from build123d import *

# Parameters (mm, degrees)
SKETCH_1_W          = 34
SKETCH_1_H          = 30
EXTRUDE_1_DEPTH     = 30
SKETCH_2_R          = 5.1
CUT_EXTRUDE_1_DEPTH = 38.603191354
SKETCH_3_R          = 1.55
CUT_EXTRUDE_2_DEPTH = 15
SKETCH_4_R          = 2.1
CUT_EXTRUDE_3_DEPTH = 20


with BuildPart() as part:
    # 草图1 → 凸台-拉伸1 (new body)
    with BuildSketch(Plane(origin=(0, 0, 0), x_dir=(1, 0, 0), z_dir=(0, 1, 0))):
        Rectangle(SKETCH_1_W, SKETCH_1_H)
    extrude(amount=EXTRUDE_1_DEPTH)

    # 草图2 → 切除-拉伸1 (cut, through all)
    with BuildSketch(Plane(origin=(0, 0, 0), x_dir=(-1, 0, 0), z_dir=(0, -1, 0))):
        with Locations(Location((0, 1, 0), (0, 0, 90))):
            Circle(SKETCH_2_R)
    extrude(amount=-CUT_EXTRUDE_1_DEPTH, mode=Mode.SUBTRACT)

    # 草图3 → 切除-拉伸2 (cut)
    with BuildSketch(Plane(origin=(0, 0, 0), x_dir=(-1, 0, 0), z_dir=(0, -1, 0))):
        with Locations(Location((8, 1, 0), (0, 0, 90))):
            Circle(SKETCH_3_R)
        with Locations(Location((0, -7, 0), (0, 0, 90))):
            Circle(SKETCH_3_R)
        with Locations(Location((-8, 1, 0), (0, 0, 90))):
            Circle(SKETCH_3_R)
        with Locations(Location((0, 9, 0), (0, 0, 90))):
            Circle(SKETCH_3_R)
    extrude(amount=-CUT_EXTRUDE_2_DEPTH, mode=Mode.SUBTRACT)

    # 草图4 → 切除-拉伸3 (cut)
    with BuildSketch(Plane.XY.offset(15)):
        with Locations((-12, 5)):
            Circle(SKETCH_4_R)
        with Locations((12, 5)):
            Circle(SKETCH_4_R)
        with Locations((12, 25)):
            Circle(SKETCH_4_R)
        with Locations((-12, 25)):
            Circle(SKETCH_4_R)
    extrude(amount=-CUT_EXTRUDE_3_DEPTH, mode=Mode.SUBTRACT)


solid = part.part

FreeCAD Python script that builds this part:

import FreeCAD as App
import Part
import Sketcher


def add_polygon(sketch, points):
    """Adds a closed chain of lines whose ends are joined by coincident constraints."""
    first, n = sketch.GeometryCount, len(points)
    for a, b in zip(points, points[1:] + points[:1]):
        sketch.addGeometry(Part.LineSegment(App.Vector(*a, 0), App.Vector(*b, 0)), False)
    for i in range(n):
        sketch.addConstraint(Sketcher.Constraint("Coincident", first + i, 2, first + (i + 1) % n, 1))

doc = App.newDocument("Part")
params = doc.addObject("Spreadsheet::Sheet", "Params")
for row, (alias, value) in enumerate([
    ("sketch1_width", "34 mm"),
    ("sketch1_height", "30 mm"),
    ("pad1_length", "30 mm"),
    ("sketch2_diameter", "10.2 mm"),
    ("sketch3_diameter", "3.1 mm"),
    ("pocket2_length", "15 mm"),
    ("sketch4_diameter", "4.2 mm"),
    ("pocket3_length", "20 mm"),
], start=1):
    params.set(f"A{row}", alias)
    params.set(f"B{row}", "=" + value)
    params.setAlias(f"B{row}", alias)

body = doc.addObject("PartDesign::Body", "Body")

sketch1 = body.newObject("Sketcher::SketchObject", "Sketch")
sketch1.AttachmentSupport = (doc.getObject("XZ_Plane"), [""])
sketch1.MapMode = "FlatFace"
add_polygon(sketch1, [(-17, -15), (-17, 15), (17, 15), (17, -15)])
sketch1.addConstraint([
    Sketcher.Constraint("Vertical", 0),
    Sketcher.Constraint("Horizontal", 1),
    Sketcher.Constraint("Vertical", 2),
    Sketcher.Constraint("Horizontal", 3),
    Sketcher.Constraint("Symmetric", 0, 2, 2, 2, -1, 1),
    Sketcher.Constraint("DistanceX", 1, 1, 1, 2, 34.0),
    Sketcher.Constraint("DistanceY", 0, 1, 0, 2, 30.0),
])
sketch1.setExpression("Constraints[9]", "Params.sketch1_width")
sketch1.setExpression("Constraints[10]", "Params.sketch1_height")
pad1 = body.newObject("PartDesign::Pad", "Pad")
pad1.Profile = sketch1
pad1.setExpression("Length", "Params.pad1_length")
pad1.Reversed = True

sketch2 = body.newObject("Sketcher::SketchObject", "Sketch001")
sketch2.AttachmentSupport = (doc.getObject("XZ_Plane"), [""])
sketch2.MapMode = "FlatFace"
sketch2.addGeometry(Part.Circle(App.Vector(0, -1, 0), App.Vector(0, 0, 1), 5), False)
sketch2.addConstraint([
    Sketcher.Constraint("PointOnObject", 0, 3, -2),
    Sketcher.Constraint("Diameter", 0, 10.2),
    Sketcher.Constraint("DistanceY", 0, 3, -1, 1, 1.0),
])
sketch2.setExpression("Constraints[1]", "Params.sketch2_diameter")
pocket1 = body.newObject("PartDesign::Pocket", "Pocket")
pocket1.Profile = sketch2
pocket1.Type = "ThroughAll"

sketch3 = body.newObject("Sketcher::SketchObject", "Sketch002")
sketch3.AttachmentSupport = (doc.getObject("XZ_Plane"), [""])
sketch3.MapMode = "FlatFace"
sketch3.addGeometry([
    Part.Circle(App.Vector(-8, -1, 0), App.Vector(0, 0, 1), 1.6),
    Part.Circle(App.Vector(0, 7, 0), App.Vector(0, 0, 1), 1.6),
    Part.Circle(App.Vector(8, -1, 0), App.Vector(0, 0, 1), 1.6),
    Part.Circle(App.Vector(0, -9, 0), App.Vector(0, 0, 1), 1.6),
], False)
sketch3.addConstraint([
    Sketcher.Constraint("Equal", 0, 1),
    Sketcher.Constraint("Equal", 1, 2),
    Sketcher.Constraint("Equal", 2, 3),
    Sketcher.Constraint("Symmetric", 0, 3, 2, 3, -2),
    Sketcher.Constraint("PointOnObject", 1, 3, -2),
    Sketcher.Constraint("PointOnObject", 3, 3, -2),
    Sketcher.Constraint("Diameter", 0, 3.1),
    Sketcher.Constraint("DistanceX", 0, 3, -1, 1, 8.0),
    Sketcher.Constraint("DistanceY", 0, 3, -1, 1, 1.0),
    Sketcher.Constraint("DistanceY", -1, 1, 1, 3, 7.0),
    Sketcher.Constraint("DistanceY", 3, 3, -1, 1, 9.0),
])
sketch3.setExpression("Constraints[6]", "Params.sketch3_diameter")
pocket2 = body.newObject("PartDesign::Pocket", "Pocket001")
pocket2.Profile = sketch3
pocket2.setExpression("Length", "Params.pocket2_length")

sketch4 = body.newObject("Sketcher::SketchObject", "Sketch003")
sketch4.AttachmentSupport = (doc.getObject("XY_Plane"), [""])
sketch4.MapMode = "FlatFace"
sketch4.AttachmentOffset = App.Placement(App.Vector(0, 0, 15), App.Rotation())
sketch4.addGeometry([
    Part.Circle(App.Vector(-12, 5, 0), App.Vector(0, 0, 1), 2.1),
    Part.Circle(App.Vector(12, 5, 0), App.Vector(0, 0, 1), 2.1),
    Part.Circle(App.Vector(12, 25, 0), App.Vector(0, 0, 1), 2.1),
    Part.Circle(App.Vector(-12, 25, 0), App.Vector(0, 0, 1), 2.1),
], False)
sketch4.addConstraint([
    Sketcher.Constraint("Equal", 0, 1),
    Sketcher.Constraint("Equal", 1, 2),
    Sketcher.Constraint("Equal", 2, 3),
    Sketcher.Constraint("Symmetric", 0, 3, 1, 3, -2),
    Sketcher.Constraint("Symmetric", 2, 3, 3, 3, -2),
    Sketcher.Constraint("Vertical", 1, 3, 2, 3),
    Sketcher.Constraint("Diameter", 0, 4.2),
    Sketcher.Constraint("DistanceX", 0, 3, -1, 1, 12.0),
    Sketcher.Constraint("DistanceY", -1, 1, 0, 3, 5.0),
    Sketcher.Constraint("DistanceY", -1, 1, 2, 3, 25.0),
])
sketch4.setExpression("Constraints[6]", "Params.sketch4_diameter")
pocket3 = body.newObject("PartDesign::Pocket", "Pocket002")
pocket3.Profile = sketch4
pocket3.setExpression("Length", "Params.pocket3_length")

doc.recompute()
